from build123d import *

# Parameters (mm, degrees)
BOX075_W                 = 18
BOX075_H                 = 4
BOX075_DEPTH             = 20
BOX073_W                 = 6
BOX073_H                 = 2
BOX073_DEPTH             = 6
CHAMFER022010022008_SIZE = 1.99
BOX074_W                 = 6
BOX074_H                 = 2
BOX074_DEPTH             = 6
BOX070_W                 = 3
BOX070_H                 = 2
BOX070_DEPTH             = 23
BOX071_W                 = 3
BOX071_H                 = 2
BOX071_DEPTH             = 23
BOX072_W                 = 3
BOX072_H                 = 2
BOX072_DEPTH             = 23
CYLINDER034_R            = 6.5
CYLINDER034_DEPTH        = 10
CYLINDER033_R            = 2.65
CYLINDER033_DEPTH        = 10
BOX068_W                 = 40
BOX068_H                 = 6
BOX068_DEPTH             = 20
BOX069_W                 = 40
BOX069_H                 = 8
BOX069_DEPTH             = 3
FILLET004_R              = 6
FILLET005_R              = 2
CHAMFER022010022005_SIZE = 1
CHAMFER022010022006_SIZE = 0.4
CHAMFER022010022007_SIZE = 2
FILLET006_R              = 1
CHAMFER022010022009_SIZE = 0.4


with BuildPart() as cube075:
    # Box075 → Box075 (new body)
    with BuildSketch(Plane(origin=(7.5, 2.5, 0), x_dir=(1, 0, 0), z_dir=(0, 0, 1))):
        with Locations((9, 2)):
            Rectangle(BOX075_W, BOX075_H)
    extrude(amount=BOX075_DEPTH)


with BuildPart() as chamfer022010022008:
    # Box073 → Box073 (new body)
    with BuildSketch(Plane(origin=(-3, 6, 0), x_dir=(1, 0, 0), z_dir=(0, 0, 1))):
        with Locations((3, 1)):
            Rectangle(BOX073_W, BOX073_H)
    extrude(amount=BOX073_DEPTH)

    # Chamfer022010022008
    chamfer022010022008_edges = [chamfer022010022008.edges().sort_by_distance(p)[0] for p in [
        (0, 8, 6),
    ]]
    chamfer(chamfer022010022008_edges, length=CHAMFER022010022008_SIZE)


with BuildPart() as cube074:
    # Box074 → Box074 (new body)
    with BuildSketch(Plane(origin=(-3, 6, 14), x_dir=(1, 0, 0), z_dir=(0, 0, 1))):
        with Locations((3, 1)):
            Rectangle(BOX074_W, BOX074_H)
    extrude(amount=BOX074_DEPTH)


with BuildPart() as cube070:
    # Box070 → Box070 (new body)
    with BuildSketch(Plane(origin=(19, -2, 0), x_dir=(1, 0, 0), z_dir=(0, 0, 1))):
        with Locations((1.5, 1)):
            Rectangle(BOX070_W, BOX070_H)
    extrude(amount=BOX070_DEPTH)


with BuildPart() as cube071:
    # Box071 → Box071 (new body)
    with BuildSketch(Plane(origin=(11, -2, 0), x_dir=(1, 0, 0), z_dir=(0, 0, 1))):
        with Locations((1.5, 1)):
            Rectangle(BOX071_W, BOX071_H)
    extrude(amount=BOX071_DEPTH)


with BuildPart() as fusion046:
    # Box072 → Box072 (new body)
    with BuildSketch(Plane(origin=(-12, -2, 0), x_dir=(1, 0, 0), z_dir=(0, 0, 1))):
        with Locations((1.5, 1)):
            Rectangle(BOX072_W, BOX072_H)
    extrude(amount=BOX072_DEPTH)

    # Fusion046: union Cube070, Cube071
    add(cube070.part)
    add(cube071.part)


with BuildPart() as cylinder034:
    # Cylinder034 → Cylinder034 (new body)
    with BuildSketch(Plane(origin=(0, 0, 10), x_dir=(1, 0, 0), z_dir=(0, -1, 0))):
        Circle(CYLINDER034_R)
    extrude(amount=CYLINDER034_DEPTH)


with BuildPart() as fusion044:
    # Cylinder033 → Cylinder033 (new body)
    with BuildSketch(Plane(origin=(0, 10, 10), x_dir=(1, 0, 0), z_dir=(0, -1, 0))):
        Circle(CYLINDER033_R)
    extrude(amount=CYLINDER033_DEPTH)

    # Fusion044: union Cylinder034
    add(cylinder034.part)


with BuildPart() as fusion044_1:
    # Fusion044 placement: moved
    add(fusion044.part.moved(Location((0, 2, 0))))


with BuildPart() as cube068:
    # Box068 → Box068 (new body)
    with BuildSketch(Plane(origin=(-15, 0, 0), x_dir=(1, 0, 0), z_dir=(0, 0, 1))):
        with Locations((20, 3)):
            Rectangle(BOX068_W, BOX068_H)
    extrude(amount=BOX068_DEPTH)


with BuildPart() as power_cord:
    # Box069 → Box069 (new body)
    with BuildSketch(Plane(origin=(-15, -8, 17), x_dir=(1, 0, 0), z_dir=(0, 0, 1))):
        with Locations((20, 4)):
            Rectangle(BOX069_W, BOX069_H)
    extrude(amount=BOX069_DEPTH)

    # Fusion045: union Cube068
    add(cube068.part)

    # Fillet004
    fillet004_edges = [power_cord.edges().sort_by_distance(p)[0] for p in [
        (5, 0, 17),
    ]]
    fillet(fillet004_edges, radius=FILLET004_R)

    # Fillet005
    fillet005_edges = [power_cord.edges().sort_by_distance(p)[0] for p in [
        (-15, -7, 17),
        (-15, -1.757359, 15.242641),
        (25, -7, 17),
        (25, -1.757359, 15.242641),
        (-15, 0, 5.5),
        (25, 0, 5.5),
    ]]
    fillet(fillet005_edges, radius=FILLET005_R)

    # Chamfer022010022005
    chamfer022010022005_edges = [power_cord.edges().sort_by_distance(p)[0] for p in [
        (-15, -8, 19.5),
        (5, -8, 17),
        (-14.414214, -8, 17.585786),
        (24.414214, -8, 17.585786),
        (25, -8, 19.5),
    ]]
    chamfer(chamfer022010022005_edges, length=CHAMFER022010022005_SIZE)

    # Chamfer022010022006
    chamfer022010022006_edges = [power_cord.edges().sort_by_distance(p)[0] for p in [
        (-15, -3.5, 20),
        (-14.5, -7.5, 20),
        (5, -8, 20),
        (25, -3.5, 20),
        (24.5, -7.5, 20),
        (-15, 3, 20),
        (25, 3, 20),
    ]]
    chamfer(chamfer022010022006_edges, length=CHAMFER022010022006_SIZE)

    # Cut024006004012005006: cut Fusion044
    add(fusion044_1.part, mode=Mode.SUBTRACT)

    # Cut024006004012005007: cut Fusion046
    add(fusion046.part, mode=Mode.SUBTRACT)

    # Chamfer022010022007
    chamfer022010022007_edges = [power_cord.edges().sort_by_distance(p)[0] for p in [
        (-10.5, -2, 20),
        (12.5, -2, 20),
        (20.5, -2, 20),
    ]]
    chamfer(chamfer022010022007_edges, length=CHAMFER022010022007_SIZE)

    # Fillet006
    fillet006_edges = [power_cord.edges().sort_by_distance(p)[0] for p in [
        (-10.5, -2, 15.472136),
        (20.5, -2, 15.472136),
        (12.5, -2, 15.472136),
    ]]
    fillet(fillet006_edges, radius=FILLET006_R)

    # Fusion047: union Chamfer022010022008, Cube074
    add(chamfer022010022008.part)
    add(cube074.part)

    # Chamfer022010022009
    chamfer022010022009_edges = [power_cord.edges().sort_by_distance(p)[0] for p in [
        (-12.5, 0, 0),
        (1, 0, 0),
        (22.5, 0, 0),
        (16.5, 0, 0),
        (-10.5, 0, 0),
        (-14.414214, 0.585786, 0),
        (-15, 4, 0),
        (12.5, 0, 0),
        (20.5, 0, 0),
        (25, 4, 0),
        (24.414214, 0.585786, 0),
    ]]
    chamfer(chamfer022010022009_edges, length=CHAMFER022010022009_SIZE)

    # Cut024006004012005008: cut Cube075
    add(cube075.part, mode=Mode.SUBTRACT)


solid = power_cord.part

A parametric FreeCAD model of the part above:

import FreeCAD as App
import Part
import Sketcher

V = App.Vector


def edges_at(feature, points):
    """Names of the edges that pass closest to the given points."""
    edges = feature.Shape.Edges
    near = lambda p: min(range(len(edges)), key=lambda i: edges[i].distToShape(Part.Vertex(*p))[0])
    return sorted({f"Edge{near(p) + 1}" for p in points})

doc = App.newDocument("Part")
params = doc.addObject("Spreadsheet::Sheet", "Params")
for row, (alias, value) in enumerate([
    ("sketch1_width", "18 mm"),
    ("sketch1_height", "4 mm"),
    ("pad1_length", "20 mm"),
    ("sketch2_width", "6 mm"),
    ("sketch2_height", "2 mm"),
    ("pad2_length", "6 mm"),
    ("chamfer_size", "1.99 mm"),
    ("sketch3_width", "6 mm"),
    ("sketch3_height", "2 mm"),
    ("pad3_length", "6 mm"),
    ("sketch4_width", "3 mm"),
    ("sketch4_height", "2 mm"),
    ("pad4_length", "23 mm"),
    ("sketch5_width", "3 mm"),
    ("sketch5_height", "2 mm"),
    ("pad5_length", "23 mm"),
    ("sketch6_width", "3 mm"),
    ("sketch6_height", "2 mm"),
    ("pad6_length", "23 mm"),
    ("sketch7_diameter", "13 mm"),
    ("pad7_length", "10 mm"),
    ("sketch8_diameter", "5.3 mm"),
    ("pad8_length", "10 mm"),
    ("sketch9_width", "40 mm"),
    ("sketch9_height", "6 mm"),
    ("pad9_length", "20 mm"),
    ("sketch10_width", "40 mm"),
    ("sketch10_height", "8 mm"),
    ("pad10_length", "3 mm"),
    ("fillet_radius", "6 mm"),
    ("fillet2_radius", "2 mm"),
    ("chamfer2_size", "1 mm"),
    ("chamfer3_size", "0.4 mm"),
    ("chamfer4_size", "2 mm"),
    ("fillet3_radius", "1 mm"),
    ("chamfer5_size", "0.4 mm"),
], start=1):
    params.set(f"A{row}", alias)
    params.set(f"B{row}", "=" + value)
    params.setAlias(f"B{row}", alias)

body = doc.addObject("PartDesign::Body", "Body")

# Sketch on XY plane
sketch1 = doc.addObject("Sketcher::SketchObject", "Sketch")
body.addObject(sketch1)
sketch1.AttachmentSupport = (doc.XY_Plane, [""])
sketch1.MapMode = "FlatFace"
sketch1.addGeometry([
    Part.LineSegment(V(7.5, 6.5, 0), V(7.5, 2.5, 0)),
    Part.LineSegment(V(7.5, 2.5, 0), V(25.5, 2.5, 0)),
    Part.LineSegment(V(25.5, 2.5, 0), V(25.5, 6.5, 0)),
    Part.LineSegment(V(25.5, 6.5, 0), V(7.5, 6.5, 0)),
], False)
sketch1.addConstraint([
    Sketcher.Constraint("Coincident", 0, 2, 1, 1),
    Sketcher.Constraint("Coincident", 1, 2, 2, 1),
    Sketcher.Constraint("Coincident", 2, 2, 3, 1),
    Sketcher.Constraint("Coincident", 3, 2, 0, 1),
    Sketcher.Constraint("Vertical", 0),
    Sketcher.Constraint("Horizontal", 1),
    Sketcher.Constraint("Vertical", 2),
    Sketcher.Constraint("Horizontal", 3),
    Sketcher.Constraint("DistanceX", 1, 1, 1, 2, 18.0),
    Sketcher.Constraint("DistanceY", 0, 2, 0, 1, 4.0),
    Sketcher.Constraint("DistanceX", -1, 1, 0, 2, 7.5),
    Sketcher.Constraint("DistanceY", -1, 1, 0, 2, 2.5),
])
sketch1.setExpression("Constraints[8]", "Params.sketch1_width")
sketch1.setExpression("Constraints[9]", "Params.sketch1_height")
pad1 = doc.addObject("PartDesign::Pad", "Pad")
body.addObject(pad1)
pad1.Profile = sketch1
pad1.setExpression("Length", "Params.pad1_length")
body2 = doc.addObject("PartDesign::Body", "Body001")

# Sketch on XY plane
sketch2 = doc.addObject("Sketcher::SketchObject", "Sketch001")
body2.addObject(sketch2)
sketch2.AttachmentSupport = (doc.getObject("XY_Plane001"), [""])
sketch2.MapMode = "FlatFace"
sketch2.addGeometry([
    Part.LineSegment(V(-3, 8, 0), V(-3, 6, 0)),
    Part.LineSegment(V(-3, 6, 0), V(3, 6, 0)),
    Part.LineSegment(V(3, 6, 0), V(3, 8, 0)),
    Part.LineSegment(V(3, 8, 0), V(-3, 8, 0)),
], False)
sketch2.addConstraint([
    Sketcher.Constraint("Coincident", 0, 2, 1, 1),
    Sketcher.Constraint("Coincident", 1, 2, 2, 1),
    Sketcher.Constraint("Coincident", 2, 2, 3, 1),
    Sketcher.Constraint("Coincident", 3, 2, 0, 1),
    Sketcher.Constraint("Vertical", 0),
    Sketcher.Constraint("Horizontal", 1),
    Sketcher.Constraint("Vertical", 2),
    Sketcher.Constraint("Horizontal", 3),
    Sketcher.Constraint("DistanceX", 1, 1, 1, 2, 6.0),
    Sketcher.Constraint("DistanceY", 0, 2, 0, 1, 2.0),
    Sketcher.Constraint("DistanceX", 0, 2, -1, 1, 3.0),
    Sketcher.Constraint("DistanceY", -1, 1, 0, 2, 6.0),
])
sketch2.setExpression("Constraints[8]", "Params.sketch2_width")
sketch2.setExpression("Constraints[9]", "Params.sketch2_height")
pad2 = doc.addObject("PartDesign::Pad", "Pad001")
body2.addObject(pad2)
pad2.Profile = sketch2
pad2.setExpression("Length", "Params.pad2_length")
doc.recompute()

chamfer = doc.addObject("PartDesign::Chamfer", "Chamfer")
body2.addObject(chamfer)
chamfer.Base = (pad2, edges_at(pad2, [(0, 8, 6)]))
chamfer.setExpression("Size", "Params.chamfer_size")
body3 = doc.addObject("PartDesign::Body", "Body002")

# Sketch on XY plane
sketch3 = doc.addObject("Sketcher::SketchObject", "Sketch002")
body3.addObject(sketch3)
sketch3.AttachmentSupport = (doc.getObject("XY_Plane002"), [""])
sketch3.MapMode = "FlatFace"
sketch3.AttachmentOffset = App.Placement(V(0, 0, 14), App.Rotation())
sketch3.addGeometry([
    Part.LineSegment(V(-3, 8, 0), V(-3, 6, 0)),
    Part.LineSegment(V(-3, 6, 0), V(3, 6, 0)),
    Part.LineSegment(V(3, 6, 0), V(3, 8, 0)),
    Part.LineSegment(V(3, 8, 0), V(-3, 8, 0)),
], False)
sketch3.addConstraint([
    Sketcher.Constraint("Coincident", 0, 2, 1, 1),
    Sketcher.Constraint("Coincident", 1, 2, 2, 1),
    Sketcher.Constraint("Coincident", 2, 2, 3, 1),
    Sketcher.Constraint("Coincident", 3, 2, 0, 1),
    Sketcher.Constraint("Vertical", 0),
    Sketcher.Constraint("Horizontal", 1),
    Sketcher.Constraint("Vertical", 2),
    Sketcher.Constraint("Horizontal", 3),
    Sketcher.Constraint("DistanceX", 1, 1, 1, 2, 6.0),
    Sketcher.Constraint("DistanceY", 0, 2, 0, 1, 2.0),
    Sketcher.Constraint("DistanceX", 0, 2, -1, 1, 3.0),
    Sketcher.Constraint("DistanceY", -1, 1, 0, 2, 6.0),
])
sketch3.setExpression("Constraints[8]", "Params.sketch3_width")
sketch3.setExpression("Constraints[9]", "Params.sketch3_height")
pad3 = doc.addObject("PartDesign::Pad", "Pad002")
body3.addObject(pad3)
pad3.Profile = sketch3
pad3.setExpression("Length", "Params.pad3_length")
body4 = doc.addObject("PartDesign::Body", "Body003")

# Sketch on XY plane
sketch4 = doc.addObject("Sketcher::SketchObject", "Sketch003")
body4.addObject(sketch4)
sketch4.AttachmentSupport = (doc.getObject("XY_Plane003"), [""])
sketch4.MapMode = "FlatFace"
sketch4.addGeometry([
    Part.LineSegment(V(19, 0, 0), V(19, -2, 0)),
    Part.LineSegment(V(19, -2, 0), V(22, -2, 0)),
    Part.LineSegment(V(22, -2, 0), V(22, 0, 0)),
    Part.LineSegment(V(22, 0, 0), V(19, 0, 0)),
], False)
sketch4.addConstraint([
    Sketcher.Constraint("Coincident", 0, 2, 1, 1),
    Sketcher.Constraint("Coincident", 1, 2, 2, 1),
    Sketcher.Constraint("Coincident", 2, 2, 3, 1),
    Sketcher.Constraint("Coincident", 3, 2, 0, 1),
    Sketcher.Constraint("Vertical", 0),
    Sketcher.Constraint("Horizontal", 1),
    Sketcher.Constraint("Vertical", 2),
    Sketcher.Constraint("Horizontal", 3),
    Sketcher.Constraint("PointOnObject", 2, 2, -1),
    Sketcher.Constraint("DistanceX", 1, 1, 1, 2, 3.0),
    Sketcher.Constraint("DistanceY", 0, 2, 0, 1, 2.0),
    Sketcher.Constraint("DistanceX", -1, 1, 0, 2, 19.0),
])
sketch4.setExpression("Constraints[9]", "Params.sketch4_width")
sketch4.setExpression("Constraints[10]", "Params.sketch4_height")
pad4 = doc.addObject("PartDesign::Pad", "Pad003")
body4.addObject(pad4)
pad4.Profile = sketch4
pad4.setExpression("Length", "Params.pad4_length")
body5 = doc.addObject("PartDesign::Body", "Body004")

# Sketch on XY plane
sketch5 = doc.addObject("Sketcher::SketchObject", "Sketch004")
body5.addObject(sketch5)
sketch5.AttachmentSupport = (doc.getObject("XY_Plane004"), [""])
sketch5.MapMode = "FlatFace"
sketch5.addGeometry([
    Part.LineSegment(V(11, 0, 0), V(11, -2, 0)),
    Part.LineSegment(V(11, -2, 0), V(14, -2, 0)),
    Part.LineSegment(V(14, -2, 0), V(14, 0, 0)),
    Part.LineSegment(V(14, 0, 0), V(11, 0, 0)),
], False)
sketch5.addConstraint([
    Sketcher.Constraint("Coincident", 0, 2, 1, 1),
    Sketcher.Constraint("Coincident", 1, 2, 2, 1),
    Sketcher.Constraint("Coincident", 2, 2, 3, 1),
    Sketcher.Constraint("Coincident", 3, 2, 0, 1),
    Sketcher.Constraint("Vertical", 0),
    Sketcher.Constraint("Horizontal", 1),
    Sketcher.Constraint("Vertical", 2),
    Sketcher.Constraint("Horizontal", 3),
    Sketcher.Constraint("PointOnObject", 2, 2, -1),
    Sketcher.Constraint("DistanceX", 1, 1, 1, 2, 3.0),
    Sketcher.Constraint("DistanceY", 0, 2, 0, 1, 2.0),
    Sketcher.Constraint("DistanceX", -1, 1, 0, 2, 11.0),
])
sketch5.setExpression("Constraints[9]", "Params.sketch5_width")
sketch5.setExpression("Constraints[10]", "Params.sketch5_height")
pad5 = doc.addObject("PartDesign::Pad", "Pad004")
body5.addObject(pad5)
pad5.Profile = sketch5
pad5.setExpression("Length", "Params.pad5_length")
body6 = doc.addObject("PartDesign::Body", "Body005")
body6.AllowCompound = True

# Sketch on XY plane
sketch6 = doc.addObject("Sketcher::SketchObject", "Sketch005")
body6.addObject(sketch6)
sketch6.AttachmentSupport = (doc.getObject("XY_Plane005"), [""])
sketch6.MapMode = "FlatFace"
sketch6.addGeometry([
    Part.LineSegment(V(-12, 0, 0), V(-12, -2, 0)),
    Part.LineSegment(V(-12, -2, 0), V(-9, -2, 0)),
    Part.LineSegment(V(-9, -2, 0), V(-9, 0, 0)),
    Part.LineSegment(V(-9, 0, 0), V(-12, 0, 0)),
], False)
sketch6.addConstraint([
    Sketcher.Constraint("Coincident", 0, 2, 1, 1),
    Sketcher.Constraint("Coincident", 1, 2, 2, 1),
    Sketcher.Constraint("Coincident", 2, 2, 3, 1),
    Sketcher.Constraint("Coincident", 3, 2, 0, 1),
    Sketcher.Constraint("Vertical", 0),
    Sketcher.Constraint("Horizontal", 1),
    Sketcher.Constraint("Vertical", 2),
    Sketcher.Constraint("Horizontal", 3),
    Sketcher.Constraint("PointOnObject", 2, 2, -1),
    Sketcher.Constraint("DistanceX", 1, 1, 1, 2, 3.0),
    Sketcher.Constraint("DistanceY", 0, 2, 0, 1, 2.0),
    Sketcher.Constraint("DistanceX", 0, 2, -1, 1, 12.0),
])
sketch6.setExpression("Constraints[9]", "Params.sketch6_width")
sketch6.setExpression("Constraints[10]", "Params.sketch6_height")
pad6 = doc.addObject("PartDesign::Pad", "Pad005")
body6.addObject(pad6)
pad6.Profile = sketch6
pad6.setExpression("Length", "Params.pad6_length")
doc.recompute()

boolean = doc.addObject("PartDesign::Boolean", "Boolean")
body6.addObject(boolean)
boolean.Type = "Fuse"
boolean.addObjects([body4])
doc.recompute()

boolean2 = doc.addObject("PartDesign::Boolean", "Boolean001")
body6.addObject(boolean2)
boolean2.Type = "Fuse"
boolean2.addObjects([body5])
body7 = doc.addObject("PartDesign::Body", "Body006")

# Sketch on XZ plane
sketch7 = doc.addObject("Sketcher::SketchObject", "Sketch006")
body7.addObject(sketch7)
sketch7.AttachmentSupport = (doc.getObject("XZ_Plane006"), [""])
sketch7.MapMode = "FlatFace"
sketch7.addGeometry(Part.Circle(V(0, 10, 0), V(0, 0, 1), 6), False)
sketch7.addConstraint([
    Sketcher.Constraint("PointOnObject", 0, 3, -2),
    Sketcher.Constraint("Diameter", 0, 13.0),
    Sketcher.Constraint("DistanceY", -1, 1, 0, 3, 10.0),
])
sketch7.setExpression("Constraints[1]", "Params.sketch7_diameter")
pad7 = doc.addObject("PartDesign::Pad", "Pad006")
body7.addObject(pad7)
pad7.Profile = sketch7
pad7.setExpression("Length", "Params.pad7_length")
body8 = doc.addObject("PartDesign::Body", "Body007")

# Sketch on XZ plane
sketch8 = doc.addObject("Sketcher::SketchObject", "Sketch007")
body8.addObject(sketch8)
sketch8.AttachmentSupport = (doc.getObject("XZ_Plane007"), [""])
sketch8.MapMode = "FlatFace"
sketch8.AttachmentOffset = App.Placement(V(0, 0, -10), App.Rotation())
sketch8.addGeometry(Part.Circle(V(0, 10, 0), V(0, 0, 1), 2.6), False)
sketch8.addConstraint([
    Sketcher.Constraint("PointOnObject", 0, 3, -2),
    Sketcher.Constraint("Diameter", 0, 5.3),
    Sketcher.Constraint("DistanceY", -1, 1, 0, 3, 10.0),
])
sketch8.setExpression("Constraints[1]", "Params.sketch8_diameter")
pad8 = doc.addObject("PartDesign::Pad", "Pad007")
body8.addObject(pad8)
pad8.Profile = sketch8
pad8.setExpression("Length", "Params.pad8_length")
doc.recompute()

boolean3 = doc.addObject("PartDesign::Boolean", "Boolean002")
body8.addObject(boolean3)
boolean3.Type = "Fuse"
boolean3.addObjects([body7])
body9 = doc.addObject("PartDesign::Body", "Body008")
doc.recompute()

body8.Placement = App.Placement(V(0, 2, 0), App.Rotation(V(0, 0, 1), 0))
boolean4 = doc.addObject("PartDesign::Boolean", "Boolean003")
body9.addObject(boolean4)
boolean4.Type = "Fuse"
boolean4.addObjects([body8])
body10 = doc.addObject("PartDesign::Body", "Body009")

# Sketch on XY plane
sketch9 = doc.addObject("Sketcher::SketchObject", "Sketch008")
body10.addObject(sketch9)
sketch9.AttachmentSupport = (doc.getObject("XY_Plane009"), [""])
sketch9.MapMode = "FlatFace"
sketch9.addGeometry([
    Part.LineSegment(V(-15, 6, 0), V(-15, 0, 0)),
    Part.LineSegment(V(-15, 0, 0), V(25, 0, 0)),
    Part.LineSegment(V(25, 0, 0), V(25, 6, 0)),
    Part.LineSegment(V(25, 6, 0), V(-15, 6, 0)),
], False)
sketch9.addConstraint([
    Sketcher.Constraint("Coincident", 0, 2, 1, 1),
    Sketcher.Constraint("Coincident", 1, 2, 2, 1),
    Sketcher.Constraint("Coincident", 2, 2, 3, 1),
    Sketcher.Constraint("Coincident", 3, 2, 0, 1),
    Sketcher.Constraint("Vertical", 0),
    Sketcher.Constraint("Horizontal", 1),
    Sketcher.Constraint("Vertical", 2),
    Sketcher.Constraint("Horizontal", 3),
    Sketcher.Constraint("PointOnObject", 0, 2, -1),
    Sketcher.Constraint("DistanceX", 1, 1, 1, 2, 40.0),
    Sketcher.Constraint("DistanceY", 0, 2, 0, 1, 6.0),
    Sketcher.Constraint("DistanceX", 0, 2, -1, 1, 15.0),
])
sketch9.setExpression("Constraints[9]", "Params.sketch9_width")
sketch9.setExpression("Constraints[10]", "Params.sketch9_height")
pad9 = doc.addObject("PartDesign::Pad", "Pad008")
body10.addObject(pad9)
pad9.Profile = sketch9
pad9.setExpression("Length", "Params.pad9_length")
body11 = doc.addObject("PartDesign::Body", "Body010")

# Sketch on XY plane
sketch10 = doc.addObject("Sketcher::SketchObject", "Sketch009")
body11.addObject(sketch10)
sketch10.AttachmentSupport = (doc.getObject("XY_Plane010"), [""])
sketch10.MapMode = "FlatFace"
sketch10.AttachmentOffset = App.Placement(V(0, 0, 17), App.Rotation())
sketch10.addGeometry([
    Part.LineSegment(V(-15, 0, 0), V(-15, -8, 0)),
    Part.LineSegment(V(-15, -8, 0), V(25, -8, 0)),
    Part.LineSegment(V(25, -8, 0), V(25, 0, 0)),
    Part.LineSegment(V(25, 0, 0), V(-15, 0, 0)),
], False)
sketch10.addConstraint([
    Sketcher.Constraint("Coincident", 0, 2, 1, 1),
    Sketcher.Constraint("Coincident", 1, 2, 2, 1),
    Sketcher.Constraint("Coincident", 2, 2, 3, 1),
    Sketcher.Constraint("Coincident", 3, 2, 0, 1),
    Sketcher.Constraint("Vertical", 0),
    Sketcher.Constraint("Horizontal", 1),
    Sketcher.Constraint("Vertical", 2),
    Sketcher.Constraint("Horizontal", 3),
    Sketcher.Constraint("PointOnObject", 2, 2, -1),
    Sketcher.Constraint("DistanceX", 1, 1, 1, 2, 40.0),
    Sketcher.Constraint("DistanceY", 0, 2, 0, 1, 8.0),
    Sketcher.Constraint("DistanceX", 0, 2, -1, 1, 15.0),
])
sketch10.setExpression("Constraints[9]", "Params.sketch10_width")
sketch10.setExpression("Constraints[10]", "Params.sketch10_height")
pad10 = doc.addObject("PartDesign::Pad", "Pad009")
body11.addObject(pad10)
pad10.Profile = sketch10
pad10.setExpression("Length", "Params.pad10_length")
doc.recompute()

boolean5 = doc.addObject("PartDesign::Boolean", "Boolean004")
body11.addObject(boolean5)
boolean5.Type = "Fuse"
boolean5.addObjects([body10])
doc.recompute()

fillet = doc.addObject("PartDesign::Fillet", "Fillet")
body11.addObject(fillet)
fillet.Base = (boolean5, edges_at(boolean5, [(5, 0, 17)]))
fillet.setExpression("Radius", "Params.fillet_radius")
doc.recompute()

fillet2 = doc.addObject("PartDesign::Fillet", "Fillet001")
body11.addObject(fillet2)
fillet2.Base = (fillet, edges_at(fillet, [
    (-15, -7, 17),
    (-15, -1.757, 15.243),
    (25, -7, 17),
    (25, -1.757, 15.243),
    (-15, 0, 5.5),
    (25, 0, 5.5),
]))
fillet2.setExpression("Radius", "Params.fillet2_radius")
doc.recompute()

chamfer2 = doc.addObject("PartDesign::Chamfer", "Chamfer001")
body11.addObject(chamfer2)
chamfer2.Base = (fillet2, edges_at(fillet2, [
    (-15, -8, 19.5),
    (5, -8, 17),
    (-14.414, -8, 17.586),
    (24.414, -8, 17.586),
    (25, -8, 19.5),
]))
chamfer2.setExpression("Size", "Params.chamfer2_size")
doc.recompute()

chamfer3 = doc.addObject("PartDesign::Chamfer", "Chamfer002")
body11.addObject(chamfer3)
chamfer3.Base = (chamfer2, edges_at(chamfer2, [
    (-15, -0.5, 20),
    (-14.5, -7.5, 20),
    (5, -8, 20),
    (25, -0.5, 20),
    (24.5, -7.5, 20),
    (-15, -0.5, 20),
    (25, -0.5, 20),
]))
chamfer3.setExpression("Size", "Params.chamfer3_size")
doc.recompute()

boolean6 = doc.addObject("PartDesign::Boolean", "Boolean005")
body11.addObject(boolean6)
boolean6.Type = "Cut"
boolean6.addObjects([body9])
doc.recompute()

boolean7 = doc.addObject("PartDesign::Boolean", "Boolean006")
body11.addObject(boolean7)
boolean7.Type = "Cut"
boolean7.addObjects([body6])
doc.recompute()

chamfer4 = doc.addObject("PartDesign::Chamfer", "Chamfer003")
body11.addObject(chamfer4)
chamfer4.Base = (boolean7, edges_at(boolean7, [(-10.5, -2, 20), (12.5, -2, 20), (20.5, -2, 20)]))
chamfer4.setExpression("Size", "Params.chamfer4_size")
doc.recompute()

fillet3 = doc.addObject("PartDesign::Fillet", "Fillet002")
body11.addObject(fillet3)
fillet3.Base = (chamfer4, edges_at(chamfer4, [(-10.5, -2, 15.472), (20.5, -2, 15.472), (12.5, -2, 15.472)]))
fillet3.setExpression("Radius", "Params.fillet3_radius")
doc.recompute()

boolean8 = doc.addObject("PartDesign::Boolean", "Boolean007")
body11.addObject(boolean8)
boolean8.Type = "Fuse"
boolean8.addObjects([body2])
doc.recompute()

boolean9 = doc.addObject("PartDesign::Boolean", "Boolean008")
body11.addObject(boolean9)
boolean9.Type = "Fuse"
boolean9.addObjects([body3])
doc.recompute()

chamfer5 = doc.addObject("PartDesign::Chamfer", "Chamfer004")
body11.addObject(chamfer5)
chamfer5.Base = (boolean9, edges_at(boolean9, [
    (5, 0, 0),
    (5, 0, 0),
    (5, 0, 0),
    (5, 0, 0),
    (5, 0, 0),
    (-14.414, 0.586, 0),
    (-15, 4, 0),
    (5, 0, 0),
    (5, 0, 0),
    (25, 4, 0),
    (24.414, 0.586, 0),
]))
chamfer5.setExpression("Size", "Params.chamfer5_size")
doc.recompute()

boolean10 = doc.addObject("PartDesign::Boolean", "Boolean009")
body11.addObject(boolean10)
boolean10.Type = "Cut"
boolean10.addObjects([body])

doc.recompute()
